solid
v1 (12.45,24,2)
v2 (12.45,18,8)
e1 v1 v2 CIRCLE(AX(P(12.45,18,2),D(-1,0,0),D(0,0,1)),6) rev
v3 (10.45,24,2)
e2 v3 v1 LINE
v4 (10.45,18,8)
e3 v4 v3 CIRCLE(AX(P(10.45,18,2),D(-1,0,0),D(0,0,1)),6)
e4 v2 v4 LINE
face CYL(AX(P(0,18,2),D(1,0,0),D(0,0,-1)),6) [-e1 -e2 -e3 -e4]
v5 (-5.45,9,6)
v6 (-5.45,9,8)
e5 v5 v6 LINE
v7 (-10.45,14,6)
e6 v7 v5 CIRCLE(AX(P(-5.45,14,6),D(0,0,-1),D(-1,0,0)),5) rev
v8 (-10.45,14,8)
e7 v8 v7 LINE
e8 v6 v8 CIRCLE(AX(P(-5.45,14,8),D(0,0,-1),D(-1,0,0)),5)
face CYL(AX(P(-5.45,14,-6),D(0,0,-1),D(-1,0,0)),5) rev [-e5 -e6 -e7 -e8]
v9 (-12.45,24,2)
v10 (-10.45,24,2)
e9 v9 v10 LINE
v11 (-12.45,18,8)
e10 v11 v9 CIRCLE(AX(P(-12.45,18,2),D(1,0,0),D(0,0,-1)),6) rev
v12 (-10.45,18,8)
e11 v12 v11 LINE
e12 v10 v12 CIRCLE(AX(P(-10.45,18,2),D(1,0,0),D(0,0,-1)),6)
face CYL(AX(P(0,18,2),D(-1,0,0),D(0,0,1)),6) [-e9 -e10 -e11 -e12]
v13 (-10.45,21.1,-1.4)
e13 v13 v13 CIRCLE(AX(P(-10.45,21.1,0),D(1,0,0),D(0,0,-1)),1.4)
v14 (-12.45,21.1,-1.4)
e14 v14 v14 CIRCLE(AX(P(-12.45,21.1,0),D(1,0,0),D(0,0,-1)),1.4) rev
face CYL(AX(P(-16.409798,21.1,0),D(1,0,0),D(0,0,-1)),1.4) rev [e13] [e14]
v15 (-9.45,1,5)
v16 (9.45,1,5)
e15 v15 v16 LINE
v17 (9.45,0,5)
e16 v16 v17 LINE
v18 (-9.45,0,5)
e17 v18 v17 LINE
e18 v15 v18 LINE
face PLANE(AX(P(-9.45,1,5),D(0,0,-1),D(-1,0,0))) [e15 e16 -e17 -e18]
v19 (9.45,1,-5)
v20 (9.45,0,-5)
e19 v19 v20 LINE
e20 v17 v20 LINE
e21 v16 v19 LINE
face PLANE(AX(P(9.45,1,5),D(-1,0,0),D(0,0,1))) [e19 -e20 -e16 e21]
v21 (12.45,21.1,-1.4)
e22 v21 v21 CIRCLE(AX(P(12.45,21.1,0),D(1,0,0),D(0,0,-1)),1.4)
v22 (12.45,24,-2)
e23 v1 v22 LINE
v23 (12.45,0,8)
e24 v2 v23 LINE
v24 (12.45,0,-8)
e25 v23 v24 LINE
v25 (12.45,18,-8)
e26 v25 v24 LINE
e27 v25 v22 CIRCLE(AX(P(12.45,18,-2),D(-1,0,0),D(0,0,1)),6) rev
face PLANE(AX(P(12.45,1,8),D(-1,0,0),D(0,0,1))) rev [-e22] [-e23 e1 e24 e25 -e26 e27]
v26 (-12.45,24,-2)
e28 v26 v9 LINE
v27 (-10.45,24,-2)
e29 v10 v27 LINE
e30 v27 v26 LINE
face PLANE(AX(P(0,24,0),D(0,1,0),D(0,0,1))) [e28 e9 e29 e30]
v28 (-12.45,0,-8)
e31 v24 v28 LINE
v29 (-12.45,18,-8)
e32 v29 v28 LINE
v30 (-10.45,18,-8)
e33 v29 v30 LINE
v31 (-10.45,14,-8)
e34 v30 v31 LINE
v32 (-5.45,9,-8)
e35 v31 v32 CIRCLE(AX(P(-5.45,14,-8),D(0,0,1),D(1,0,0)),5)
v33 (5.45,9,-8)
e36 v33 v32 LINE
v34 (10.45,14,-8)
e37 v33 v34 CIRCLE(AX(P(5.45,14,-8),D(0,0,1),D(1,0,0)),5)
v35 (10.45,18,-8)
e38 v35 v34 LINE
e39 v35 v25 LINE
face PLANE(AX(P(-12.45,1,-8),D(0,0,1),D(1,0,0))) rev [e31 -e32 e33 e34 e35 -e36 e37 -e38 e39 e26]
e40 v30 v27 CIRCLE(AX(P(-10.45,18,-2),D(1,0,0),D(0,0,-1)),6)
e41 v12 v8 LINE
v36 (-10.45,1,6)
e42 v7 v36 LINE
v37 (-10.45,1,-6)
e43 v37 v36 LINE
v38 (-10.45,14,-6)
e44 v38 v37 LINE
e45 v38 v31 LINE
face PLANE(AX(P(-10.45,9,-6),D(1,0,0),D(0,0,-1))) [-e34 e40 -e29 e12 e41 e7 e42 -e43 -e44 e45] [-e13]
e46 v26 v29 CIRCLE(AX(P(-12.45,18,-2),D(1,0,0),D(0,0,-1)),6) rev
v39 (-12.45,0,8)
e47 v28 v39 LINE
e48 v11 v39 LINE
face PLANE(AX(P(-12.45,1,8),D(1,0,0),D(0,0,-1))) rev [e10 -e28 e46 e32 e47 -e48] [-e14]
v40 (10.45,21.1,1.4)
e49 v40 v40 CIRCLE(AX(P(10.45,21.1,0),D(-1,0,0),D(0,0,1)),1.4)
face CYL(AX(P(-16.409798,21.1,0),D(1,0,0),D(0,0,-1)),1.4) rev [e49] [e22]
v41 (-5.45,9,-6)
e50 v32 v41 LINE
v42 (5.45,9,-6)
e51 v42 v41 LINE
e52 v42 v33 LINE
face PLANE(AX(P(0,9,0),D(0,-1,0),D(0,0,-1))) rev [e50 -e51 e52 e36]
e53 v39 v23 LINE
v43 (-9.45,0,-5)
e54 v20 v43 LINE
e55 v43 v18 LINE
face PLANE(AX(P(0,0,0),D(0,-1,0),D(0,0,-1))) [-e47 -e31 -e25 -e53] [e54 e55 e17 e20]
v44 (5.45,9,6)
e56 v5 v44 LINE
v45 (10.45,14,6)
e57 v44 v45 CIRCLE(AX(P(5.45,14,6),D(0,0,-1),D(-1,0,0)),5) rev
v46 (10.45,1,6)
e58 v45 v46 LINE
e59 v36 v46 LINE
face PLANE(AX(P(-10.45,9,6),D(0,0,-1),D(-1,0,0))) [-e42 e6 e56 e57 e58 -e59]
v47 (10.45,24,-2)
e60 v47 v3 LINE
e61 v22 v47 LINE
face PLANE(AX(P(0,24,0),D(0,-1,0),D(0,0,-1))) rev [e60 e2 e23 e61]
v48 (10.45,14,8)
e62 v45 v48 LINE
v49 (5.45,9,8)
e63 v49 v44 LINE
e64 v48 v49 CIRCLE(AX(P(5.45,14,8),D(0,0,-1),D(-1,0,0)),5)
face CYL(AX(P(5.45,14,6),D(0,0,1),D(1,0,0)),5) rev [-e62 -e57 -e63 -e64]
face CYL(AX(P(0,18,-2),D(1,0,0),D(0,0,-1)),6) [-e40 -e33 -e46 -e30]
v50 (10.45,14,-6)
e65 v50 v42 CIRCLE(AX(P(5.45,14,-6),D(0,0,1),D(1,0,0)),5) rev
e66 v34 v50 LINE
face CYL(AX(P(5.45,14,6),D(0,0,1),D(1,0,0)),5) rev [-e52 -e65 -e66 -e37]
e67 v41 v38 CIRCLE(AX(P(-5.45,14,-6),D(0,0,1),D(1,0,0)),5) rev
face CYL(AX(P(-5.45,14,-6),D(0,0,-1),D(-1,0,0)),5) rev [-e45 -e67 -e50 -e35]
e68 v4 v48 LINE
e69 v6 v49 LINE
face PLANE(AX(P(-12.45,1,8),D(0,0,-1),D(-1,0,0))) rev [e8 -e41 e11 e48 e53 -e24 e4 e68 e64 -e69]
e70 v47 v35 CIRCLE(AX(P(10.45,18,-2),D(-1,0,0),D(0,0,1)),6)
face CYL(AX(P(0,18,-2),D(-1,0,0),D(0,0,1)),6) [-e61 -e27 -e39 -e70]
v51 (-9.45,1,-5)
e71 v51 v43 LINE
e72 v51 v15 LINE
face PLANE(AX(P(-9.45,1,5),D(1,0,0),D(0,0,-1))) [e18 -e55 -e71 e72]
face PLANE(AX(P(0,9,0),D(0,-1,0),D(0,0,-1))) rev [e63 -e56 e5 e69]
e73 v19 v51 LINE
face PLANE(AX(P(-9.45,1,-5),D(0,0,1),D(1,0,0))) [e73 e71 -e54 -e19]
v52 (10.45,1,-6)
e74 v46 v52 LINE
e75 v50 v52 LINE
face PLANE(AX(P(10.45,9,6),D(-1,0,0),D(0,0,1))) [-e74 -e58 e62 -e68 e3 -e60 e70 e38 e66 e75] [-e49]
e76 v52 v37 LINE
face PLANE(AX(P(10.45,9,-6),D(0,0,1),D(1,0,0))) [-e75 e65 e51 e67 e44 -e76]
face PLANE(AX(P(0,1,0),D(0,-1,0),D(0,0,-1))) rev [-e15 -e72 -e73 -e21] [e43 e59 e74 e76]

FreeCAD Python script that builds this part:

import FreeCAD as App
import Part
import Sketcher

V = App.Vector


def edges_at(feature, points):
    """Names of the edges that pass closest to the given points."""
    edges = feature.Shape.Edges
    near = lambda p: min(range(len(edges)), key=lambda i: edges[i].distToShape(Part.Vertex(*p))[0])
    return sorted({f"Edge{near(p) + 1}" for p in points})

doc = App.newDocument("Part")
body = doc.addObject("PartDesign::Body", "Body")

# Sketch on XZ plane
sketch1 = doc.addObject("Sketcher::SketchObject", "Sketch")
body.addObject(sketch1)
sketch1.AttachmentSupport = (doc.XZ_Plane, [""])
sketch1.MapMode = "FlatFace"
sketch1.addGeometry([
    Part.LineSegment(V(-12, -8, 0), V(-12, 8, 0)),  # 0
    Part.LineSegment(V(-12, 8, 0), V(12, 8, 0)),  # 1
    Part.LineSegment(V(12, 8, 0), V(12, -8, 0)),  # 2
    Part.LineSegment(V(12, -8, 0), V(-12, -8, 0)),  # 3
    Part.LineSegment(V(9, 5, 0), V(-9, 5, 0)),  # 4
    Part.LineSegment(V(-9, 5, 0), V(-9, -5, 0)),  # 5
    Part.LineSegment(V(-9, -5, 0), V(9, -5, 0)),  # 6
    Part.LineSegment(V(9, -5, 0), V(9, 5, 0)),  # 7
], False)
sketch1.addConstraint([
    Sketcher.Constraint("Coincident", 0, 2, 1, 1),
    Sketcher.Constraint("Coincident", 1, 2, 2, 1),
    Sketcher.Constraint("Coincident", 2, 2, 3, 1),
    Sketcher.Constraint("Coincident", 3, 2, 0, 1),
    Sketcher.Constraint("Coincident", 4, 2, 5, 1),
    Sketcher.Constraint("Coincident", 5, 2, 6, 1),
    Sketcher.Constraint("Coincident", 6, 2, 7, 1),
    Sketcher.Constraint("Coincident", 7, 2, 4, 1),
    Sketcher.Constraint("Vertical", 0),
    Sketcher.Constraint("Horizontal", 1),
    Sketcher.Constraint("Vertical", 2),
    Sketcher.Constraint("Horizontal", 3),
    Sketcher.Constraint("Horizontal", 4),
    Sketcher.Constraint("Vertical", 5),
    Sketcher.Constraint("Horizontal", 6),
    Sketcher.Constraint("Vertical", 7),
    Sketcher.Constraint("Symmetric", 0, 2, 2, 2, -1, 1),
    Sketcher.Constraint("Symmetric", 4, 2, 6, 2, -1, 1),
    Sketcher.Constraint("DistanceY", 0, 1, 0, 2, 16.0),
    Sketcher.Constraint("DistanceY", 5, 2, 5, 1, 10.0),
    Sketcher.Constraint("DistanceX", 1, 1, 1, 2, 24.9),
    Sketcher.Constraint("DistanceX", 4, 2, 4, 1, 18.9),
])
pad1 = doc.addObject("PartDesign::Pad", "Pad")
body.addObject(pad1)
pad1.Profile = sketch1
pad1.Length = 1
pad1.Reversed = True

# Sketch on XZ plane
sketch2 = doc.addObject("Sketcher::SketchObject", "Sketch001")
body.addObject(sketch2)
sketch2.AttachmentSupport = (doc.XZ_Plane, [""])
sketch2.MapMode = "FlatFace"
sketch2.AttachmentOffset = App.Placement(V(0, 0, -1), App.Rotation())
sketch2.addGeometry([
    Part.LineSegment(V(-12, -8, 0), V(-12, 8, 0)),  # 0
    Part.LineSegment(V(-12, 8, 0), V(12, 8, 0)),  # 1
    Part.LineSegment(V(12, 8, 0), V(12, -8, 0)),  # 2
    Part.LineSegment(V(12, -8, 0), V(-12, -8, 0)),  # 3
    Part.LineSegment(V(10, 6, 0), V(-10, 6, 0)),  # 4
    Part.LineSegment(V(-10, 6, 0), V(-10, -6, 0)),  # 5
    Part.LineSegment(V(-10, -6, 0), V(10, -6, 0)),  # 6
    Part.LineSegment(V(10, -6, 0), V(10, 6, 0)),  # 7
], False)
sketch2.addConstraint([
    Sketcher.Constraint("Coincident", 0, 2, 1, 1),
    Sketcher.Constraint("Coincident", 1, 2, 2, 1),
    Sketcher.Constraint("Coincident", 2, 2, 3, 1),
    Sketcher.Constraint("Coincident", 3, 2, 0, 1),
    Sketcher.Constraint("Coincident", 4, 2, 5, 1),
    Sketcher.Constraint("Coincident", 5, 2, 6, 1),
    Sketcher.Constraint("Coincident", 6, 2, 7, 1),
    Sketcher.Constraint("Coincident", 7, 2, 4, 1),
    Sketcher.Constraint("Vertical", 0),
    Sketcher.Constraint("Horizontal", 1),
    Sketcher.Constraint("Vertical", 2),
    Sketcher.Constraint("Horizontal", 3),
    Sketcher.Constraint("Horizontal", 4),
    Sketcher.Constraint("Vertical", 5),
    Sketcher.Constraint("Horizontal", 6),
    Sketcher.Constraint("Vertical", 7),
    Sketcher.Constraint("Symmetric", 0, 2, 2, 2, -1, 1),
    Sketcher.Constraint("Symmetric", 4, 2, 6, 2, -1, 1),
    Sketcher.Constraint("DistanceY", 0, 1, 0, 2, 16.0),
    Sketcher.Constraint("DistanceY", 5, 2, 5, 1, 12.0),
    Sketcher.Constraint("DistanceX", 1, 1, 1, 2, 24.9),
    Sketcher.Constraint("DistanceX", 4, 2, 4, 1, 20.9),
])
pad2 = doc.addObject("PartDesign::Pad", "Pad001")
body.addObject(pad2)
pad2.Profile = sketch2
pad2.Length = 8
pad2.Reversed = True

# Sketch on XZ plane
sketch3 = doc.addObject("Sketcher::SketchObject", "Sketch002")
body.addObject(sketch3)
sketch3.AttachmentSupport = (doc.XZ_Plane, [""])
sketch3.MapMode = "FlatFace"
sketch3.AttachmentOffset = App.Placement(V(0, 0, -9), App.Rotation())
sketch3.addGeometry([
    Part.LineSegment(V(-12.4, -8, 0), V(-12.4, 8, 0)),  # 0
    Part.LineSegment(V(-12.4, 8, 0), V(-10.4, 8, 0)),  # 1
    Part.LineSegment(V(-10.4, 8, 0), V(-10.4, -8, 0)),  # 2
    Part.LineSegment(V(-10.4, -8, 0), V(-12.4, -8, 0)),  # 3
    Part.LineSegment(V(10.4, -8, 0), V(10.4, 8, 0)),  # 4
    Part.LineSegment(V(10.4, 8, 0), V(12.4, 8, 0)),  # 5
    Part.LineSegment(V(12.4, 8, 0), V(12.4, -8, 0)),  # 6
    Part.LineSegment(V(12.4, -8, 0), V(10.4, -8, 0)),  # 7
], False)
sketch3.addConstraint([
    Sketcher.Constraint("Coincident", 0, 2, 1, 1),
    Sketcher.Constraint("Coincident", 1, 2, 2, 1),
    Sketcher.Constraint("Coincident", 2, 2, 3, 1),
    Sketcher.Constraint("Coincident", 3, 2, 0, 1),
    Sketcher.Constraint("Coincident", 4, 2, 5, 1),
    Sketcher.Constraint("Coincident", 5, 2, 6, 1),
    Sketcher.Constraint("Coincident", 6, 2, 7, 1),
    Sketcher.Constraint("Coincident", 7, 2, 4, 1),
    Sketcher.Constraint("Vertical", 0),
    Sketcher.Constraint("Horizontal", 1),
    Sketcher.Constraint("Vertical", 2),
    Sketcher.Constraint("Horizontal", 3),
    Sketcher.Constraint("Vertical", 4),
    Sketcher.Constraint("Horizontal", 5),
    Sketcher.Constraint("Vertical", 6),
    Sketcher.Constraint("Horizontal", 7),
    Sketcher.Constraint("Symmetric", 2, 2, 4, 2, -1, 1),
    Sketcher.Constraint("Symmetric", 0, 2, 6, 2, -1, 1),
    Sketcher.Constraint("Horizontal", 1, 2, 4, 2),
    Sketcher.Constraint("DistanceX", 1, 1, 1, 2, 2.0),
    Sketcher.Constraint("DistanceY", 0, 1, 0, 2, 16.0),
    Sketcher.Constraint("DistanceX", 1, 2, 4, 2, 20.9),
])
pad3 = doc.addObject("PartDesign::Pad", "Pad002")
body.addObject(pad3)
pad3.Profile = sketch3
pad3.Length = 15
pad3.Reversed = True
doc.recompute()

fillet = doc.addObject("PartDesign::Fillet", "Fillet")
body.addObject(fillet)
fillet.Base = (pad3, edges_at(pad3, [
    (-10.45, 9, -7),
    (-10.45, 9, 7),
    (10.45, 9, 7),
    (10.45, 9, -7),
]))
fillet.Radius = 5

# Sketch on YZ plane
sketch4 = doc.addObject("Sketcher::SketchObject", "Sketch003")
body.addObject(sketch4)
sketch4.AttachmentSupport = (doc.YZ_Plane, [""])
sketch4.MapMode = "FlatFace"
sketch4.AttachmentOffset = App.Placement(V(0, 0, 12.45), App.Rotation())
sketch4.addGeometry(Part.Circle(V(21.1, 0, 0), V(0, 0, 1), 1.4), False)
sketch4.addConstraint([
    Sketcher.Constraint("PointOnObject", 0, 3, -1),
    Sketcher.Constraint("Diameter", 0, 2.8),
    Sketcher.Constraint("DistanceX", -1, 1, 0, 3, 21.1),
])
pocket1 = doc.addObject("PartDesign::Pocket", "Pocket")
body.addObject(pocket1)
pocket1.Profile = sketch4
pocket1.Length = 24.9
doc.recompute()

fillet2 = doc.addObject("PartDesign::Fillet", "Fillet001")
body.addObject(fillet2)
fillet2.Base = (pocket1, edges_at(pocket1, [
    (11.45, 24, -8),
    (11.45, 24, 8),
    (-11.45, 24, 8),
    (-11.45, 24, -8),
]))
fillet2.Radius = 6

doc.recompute()
